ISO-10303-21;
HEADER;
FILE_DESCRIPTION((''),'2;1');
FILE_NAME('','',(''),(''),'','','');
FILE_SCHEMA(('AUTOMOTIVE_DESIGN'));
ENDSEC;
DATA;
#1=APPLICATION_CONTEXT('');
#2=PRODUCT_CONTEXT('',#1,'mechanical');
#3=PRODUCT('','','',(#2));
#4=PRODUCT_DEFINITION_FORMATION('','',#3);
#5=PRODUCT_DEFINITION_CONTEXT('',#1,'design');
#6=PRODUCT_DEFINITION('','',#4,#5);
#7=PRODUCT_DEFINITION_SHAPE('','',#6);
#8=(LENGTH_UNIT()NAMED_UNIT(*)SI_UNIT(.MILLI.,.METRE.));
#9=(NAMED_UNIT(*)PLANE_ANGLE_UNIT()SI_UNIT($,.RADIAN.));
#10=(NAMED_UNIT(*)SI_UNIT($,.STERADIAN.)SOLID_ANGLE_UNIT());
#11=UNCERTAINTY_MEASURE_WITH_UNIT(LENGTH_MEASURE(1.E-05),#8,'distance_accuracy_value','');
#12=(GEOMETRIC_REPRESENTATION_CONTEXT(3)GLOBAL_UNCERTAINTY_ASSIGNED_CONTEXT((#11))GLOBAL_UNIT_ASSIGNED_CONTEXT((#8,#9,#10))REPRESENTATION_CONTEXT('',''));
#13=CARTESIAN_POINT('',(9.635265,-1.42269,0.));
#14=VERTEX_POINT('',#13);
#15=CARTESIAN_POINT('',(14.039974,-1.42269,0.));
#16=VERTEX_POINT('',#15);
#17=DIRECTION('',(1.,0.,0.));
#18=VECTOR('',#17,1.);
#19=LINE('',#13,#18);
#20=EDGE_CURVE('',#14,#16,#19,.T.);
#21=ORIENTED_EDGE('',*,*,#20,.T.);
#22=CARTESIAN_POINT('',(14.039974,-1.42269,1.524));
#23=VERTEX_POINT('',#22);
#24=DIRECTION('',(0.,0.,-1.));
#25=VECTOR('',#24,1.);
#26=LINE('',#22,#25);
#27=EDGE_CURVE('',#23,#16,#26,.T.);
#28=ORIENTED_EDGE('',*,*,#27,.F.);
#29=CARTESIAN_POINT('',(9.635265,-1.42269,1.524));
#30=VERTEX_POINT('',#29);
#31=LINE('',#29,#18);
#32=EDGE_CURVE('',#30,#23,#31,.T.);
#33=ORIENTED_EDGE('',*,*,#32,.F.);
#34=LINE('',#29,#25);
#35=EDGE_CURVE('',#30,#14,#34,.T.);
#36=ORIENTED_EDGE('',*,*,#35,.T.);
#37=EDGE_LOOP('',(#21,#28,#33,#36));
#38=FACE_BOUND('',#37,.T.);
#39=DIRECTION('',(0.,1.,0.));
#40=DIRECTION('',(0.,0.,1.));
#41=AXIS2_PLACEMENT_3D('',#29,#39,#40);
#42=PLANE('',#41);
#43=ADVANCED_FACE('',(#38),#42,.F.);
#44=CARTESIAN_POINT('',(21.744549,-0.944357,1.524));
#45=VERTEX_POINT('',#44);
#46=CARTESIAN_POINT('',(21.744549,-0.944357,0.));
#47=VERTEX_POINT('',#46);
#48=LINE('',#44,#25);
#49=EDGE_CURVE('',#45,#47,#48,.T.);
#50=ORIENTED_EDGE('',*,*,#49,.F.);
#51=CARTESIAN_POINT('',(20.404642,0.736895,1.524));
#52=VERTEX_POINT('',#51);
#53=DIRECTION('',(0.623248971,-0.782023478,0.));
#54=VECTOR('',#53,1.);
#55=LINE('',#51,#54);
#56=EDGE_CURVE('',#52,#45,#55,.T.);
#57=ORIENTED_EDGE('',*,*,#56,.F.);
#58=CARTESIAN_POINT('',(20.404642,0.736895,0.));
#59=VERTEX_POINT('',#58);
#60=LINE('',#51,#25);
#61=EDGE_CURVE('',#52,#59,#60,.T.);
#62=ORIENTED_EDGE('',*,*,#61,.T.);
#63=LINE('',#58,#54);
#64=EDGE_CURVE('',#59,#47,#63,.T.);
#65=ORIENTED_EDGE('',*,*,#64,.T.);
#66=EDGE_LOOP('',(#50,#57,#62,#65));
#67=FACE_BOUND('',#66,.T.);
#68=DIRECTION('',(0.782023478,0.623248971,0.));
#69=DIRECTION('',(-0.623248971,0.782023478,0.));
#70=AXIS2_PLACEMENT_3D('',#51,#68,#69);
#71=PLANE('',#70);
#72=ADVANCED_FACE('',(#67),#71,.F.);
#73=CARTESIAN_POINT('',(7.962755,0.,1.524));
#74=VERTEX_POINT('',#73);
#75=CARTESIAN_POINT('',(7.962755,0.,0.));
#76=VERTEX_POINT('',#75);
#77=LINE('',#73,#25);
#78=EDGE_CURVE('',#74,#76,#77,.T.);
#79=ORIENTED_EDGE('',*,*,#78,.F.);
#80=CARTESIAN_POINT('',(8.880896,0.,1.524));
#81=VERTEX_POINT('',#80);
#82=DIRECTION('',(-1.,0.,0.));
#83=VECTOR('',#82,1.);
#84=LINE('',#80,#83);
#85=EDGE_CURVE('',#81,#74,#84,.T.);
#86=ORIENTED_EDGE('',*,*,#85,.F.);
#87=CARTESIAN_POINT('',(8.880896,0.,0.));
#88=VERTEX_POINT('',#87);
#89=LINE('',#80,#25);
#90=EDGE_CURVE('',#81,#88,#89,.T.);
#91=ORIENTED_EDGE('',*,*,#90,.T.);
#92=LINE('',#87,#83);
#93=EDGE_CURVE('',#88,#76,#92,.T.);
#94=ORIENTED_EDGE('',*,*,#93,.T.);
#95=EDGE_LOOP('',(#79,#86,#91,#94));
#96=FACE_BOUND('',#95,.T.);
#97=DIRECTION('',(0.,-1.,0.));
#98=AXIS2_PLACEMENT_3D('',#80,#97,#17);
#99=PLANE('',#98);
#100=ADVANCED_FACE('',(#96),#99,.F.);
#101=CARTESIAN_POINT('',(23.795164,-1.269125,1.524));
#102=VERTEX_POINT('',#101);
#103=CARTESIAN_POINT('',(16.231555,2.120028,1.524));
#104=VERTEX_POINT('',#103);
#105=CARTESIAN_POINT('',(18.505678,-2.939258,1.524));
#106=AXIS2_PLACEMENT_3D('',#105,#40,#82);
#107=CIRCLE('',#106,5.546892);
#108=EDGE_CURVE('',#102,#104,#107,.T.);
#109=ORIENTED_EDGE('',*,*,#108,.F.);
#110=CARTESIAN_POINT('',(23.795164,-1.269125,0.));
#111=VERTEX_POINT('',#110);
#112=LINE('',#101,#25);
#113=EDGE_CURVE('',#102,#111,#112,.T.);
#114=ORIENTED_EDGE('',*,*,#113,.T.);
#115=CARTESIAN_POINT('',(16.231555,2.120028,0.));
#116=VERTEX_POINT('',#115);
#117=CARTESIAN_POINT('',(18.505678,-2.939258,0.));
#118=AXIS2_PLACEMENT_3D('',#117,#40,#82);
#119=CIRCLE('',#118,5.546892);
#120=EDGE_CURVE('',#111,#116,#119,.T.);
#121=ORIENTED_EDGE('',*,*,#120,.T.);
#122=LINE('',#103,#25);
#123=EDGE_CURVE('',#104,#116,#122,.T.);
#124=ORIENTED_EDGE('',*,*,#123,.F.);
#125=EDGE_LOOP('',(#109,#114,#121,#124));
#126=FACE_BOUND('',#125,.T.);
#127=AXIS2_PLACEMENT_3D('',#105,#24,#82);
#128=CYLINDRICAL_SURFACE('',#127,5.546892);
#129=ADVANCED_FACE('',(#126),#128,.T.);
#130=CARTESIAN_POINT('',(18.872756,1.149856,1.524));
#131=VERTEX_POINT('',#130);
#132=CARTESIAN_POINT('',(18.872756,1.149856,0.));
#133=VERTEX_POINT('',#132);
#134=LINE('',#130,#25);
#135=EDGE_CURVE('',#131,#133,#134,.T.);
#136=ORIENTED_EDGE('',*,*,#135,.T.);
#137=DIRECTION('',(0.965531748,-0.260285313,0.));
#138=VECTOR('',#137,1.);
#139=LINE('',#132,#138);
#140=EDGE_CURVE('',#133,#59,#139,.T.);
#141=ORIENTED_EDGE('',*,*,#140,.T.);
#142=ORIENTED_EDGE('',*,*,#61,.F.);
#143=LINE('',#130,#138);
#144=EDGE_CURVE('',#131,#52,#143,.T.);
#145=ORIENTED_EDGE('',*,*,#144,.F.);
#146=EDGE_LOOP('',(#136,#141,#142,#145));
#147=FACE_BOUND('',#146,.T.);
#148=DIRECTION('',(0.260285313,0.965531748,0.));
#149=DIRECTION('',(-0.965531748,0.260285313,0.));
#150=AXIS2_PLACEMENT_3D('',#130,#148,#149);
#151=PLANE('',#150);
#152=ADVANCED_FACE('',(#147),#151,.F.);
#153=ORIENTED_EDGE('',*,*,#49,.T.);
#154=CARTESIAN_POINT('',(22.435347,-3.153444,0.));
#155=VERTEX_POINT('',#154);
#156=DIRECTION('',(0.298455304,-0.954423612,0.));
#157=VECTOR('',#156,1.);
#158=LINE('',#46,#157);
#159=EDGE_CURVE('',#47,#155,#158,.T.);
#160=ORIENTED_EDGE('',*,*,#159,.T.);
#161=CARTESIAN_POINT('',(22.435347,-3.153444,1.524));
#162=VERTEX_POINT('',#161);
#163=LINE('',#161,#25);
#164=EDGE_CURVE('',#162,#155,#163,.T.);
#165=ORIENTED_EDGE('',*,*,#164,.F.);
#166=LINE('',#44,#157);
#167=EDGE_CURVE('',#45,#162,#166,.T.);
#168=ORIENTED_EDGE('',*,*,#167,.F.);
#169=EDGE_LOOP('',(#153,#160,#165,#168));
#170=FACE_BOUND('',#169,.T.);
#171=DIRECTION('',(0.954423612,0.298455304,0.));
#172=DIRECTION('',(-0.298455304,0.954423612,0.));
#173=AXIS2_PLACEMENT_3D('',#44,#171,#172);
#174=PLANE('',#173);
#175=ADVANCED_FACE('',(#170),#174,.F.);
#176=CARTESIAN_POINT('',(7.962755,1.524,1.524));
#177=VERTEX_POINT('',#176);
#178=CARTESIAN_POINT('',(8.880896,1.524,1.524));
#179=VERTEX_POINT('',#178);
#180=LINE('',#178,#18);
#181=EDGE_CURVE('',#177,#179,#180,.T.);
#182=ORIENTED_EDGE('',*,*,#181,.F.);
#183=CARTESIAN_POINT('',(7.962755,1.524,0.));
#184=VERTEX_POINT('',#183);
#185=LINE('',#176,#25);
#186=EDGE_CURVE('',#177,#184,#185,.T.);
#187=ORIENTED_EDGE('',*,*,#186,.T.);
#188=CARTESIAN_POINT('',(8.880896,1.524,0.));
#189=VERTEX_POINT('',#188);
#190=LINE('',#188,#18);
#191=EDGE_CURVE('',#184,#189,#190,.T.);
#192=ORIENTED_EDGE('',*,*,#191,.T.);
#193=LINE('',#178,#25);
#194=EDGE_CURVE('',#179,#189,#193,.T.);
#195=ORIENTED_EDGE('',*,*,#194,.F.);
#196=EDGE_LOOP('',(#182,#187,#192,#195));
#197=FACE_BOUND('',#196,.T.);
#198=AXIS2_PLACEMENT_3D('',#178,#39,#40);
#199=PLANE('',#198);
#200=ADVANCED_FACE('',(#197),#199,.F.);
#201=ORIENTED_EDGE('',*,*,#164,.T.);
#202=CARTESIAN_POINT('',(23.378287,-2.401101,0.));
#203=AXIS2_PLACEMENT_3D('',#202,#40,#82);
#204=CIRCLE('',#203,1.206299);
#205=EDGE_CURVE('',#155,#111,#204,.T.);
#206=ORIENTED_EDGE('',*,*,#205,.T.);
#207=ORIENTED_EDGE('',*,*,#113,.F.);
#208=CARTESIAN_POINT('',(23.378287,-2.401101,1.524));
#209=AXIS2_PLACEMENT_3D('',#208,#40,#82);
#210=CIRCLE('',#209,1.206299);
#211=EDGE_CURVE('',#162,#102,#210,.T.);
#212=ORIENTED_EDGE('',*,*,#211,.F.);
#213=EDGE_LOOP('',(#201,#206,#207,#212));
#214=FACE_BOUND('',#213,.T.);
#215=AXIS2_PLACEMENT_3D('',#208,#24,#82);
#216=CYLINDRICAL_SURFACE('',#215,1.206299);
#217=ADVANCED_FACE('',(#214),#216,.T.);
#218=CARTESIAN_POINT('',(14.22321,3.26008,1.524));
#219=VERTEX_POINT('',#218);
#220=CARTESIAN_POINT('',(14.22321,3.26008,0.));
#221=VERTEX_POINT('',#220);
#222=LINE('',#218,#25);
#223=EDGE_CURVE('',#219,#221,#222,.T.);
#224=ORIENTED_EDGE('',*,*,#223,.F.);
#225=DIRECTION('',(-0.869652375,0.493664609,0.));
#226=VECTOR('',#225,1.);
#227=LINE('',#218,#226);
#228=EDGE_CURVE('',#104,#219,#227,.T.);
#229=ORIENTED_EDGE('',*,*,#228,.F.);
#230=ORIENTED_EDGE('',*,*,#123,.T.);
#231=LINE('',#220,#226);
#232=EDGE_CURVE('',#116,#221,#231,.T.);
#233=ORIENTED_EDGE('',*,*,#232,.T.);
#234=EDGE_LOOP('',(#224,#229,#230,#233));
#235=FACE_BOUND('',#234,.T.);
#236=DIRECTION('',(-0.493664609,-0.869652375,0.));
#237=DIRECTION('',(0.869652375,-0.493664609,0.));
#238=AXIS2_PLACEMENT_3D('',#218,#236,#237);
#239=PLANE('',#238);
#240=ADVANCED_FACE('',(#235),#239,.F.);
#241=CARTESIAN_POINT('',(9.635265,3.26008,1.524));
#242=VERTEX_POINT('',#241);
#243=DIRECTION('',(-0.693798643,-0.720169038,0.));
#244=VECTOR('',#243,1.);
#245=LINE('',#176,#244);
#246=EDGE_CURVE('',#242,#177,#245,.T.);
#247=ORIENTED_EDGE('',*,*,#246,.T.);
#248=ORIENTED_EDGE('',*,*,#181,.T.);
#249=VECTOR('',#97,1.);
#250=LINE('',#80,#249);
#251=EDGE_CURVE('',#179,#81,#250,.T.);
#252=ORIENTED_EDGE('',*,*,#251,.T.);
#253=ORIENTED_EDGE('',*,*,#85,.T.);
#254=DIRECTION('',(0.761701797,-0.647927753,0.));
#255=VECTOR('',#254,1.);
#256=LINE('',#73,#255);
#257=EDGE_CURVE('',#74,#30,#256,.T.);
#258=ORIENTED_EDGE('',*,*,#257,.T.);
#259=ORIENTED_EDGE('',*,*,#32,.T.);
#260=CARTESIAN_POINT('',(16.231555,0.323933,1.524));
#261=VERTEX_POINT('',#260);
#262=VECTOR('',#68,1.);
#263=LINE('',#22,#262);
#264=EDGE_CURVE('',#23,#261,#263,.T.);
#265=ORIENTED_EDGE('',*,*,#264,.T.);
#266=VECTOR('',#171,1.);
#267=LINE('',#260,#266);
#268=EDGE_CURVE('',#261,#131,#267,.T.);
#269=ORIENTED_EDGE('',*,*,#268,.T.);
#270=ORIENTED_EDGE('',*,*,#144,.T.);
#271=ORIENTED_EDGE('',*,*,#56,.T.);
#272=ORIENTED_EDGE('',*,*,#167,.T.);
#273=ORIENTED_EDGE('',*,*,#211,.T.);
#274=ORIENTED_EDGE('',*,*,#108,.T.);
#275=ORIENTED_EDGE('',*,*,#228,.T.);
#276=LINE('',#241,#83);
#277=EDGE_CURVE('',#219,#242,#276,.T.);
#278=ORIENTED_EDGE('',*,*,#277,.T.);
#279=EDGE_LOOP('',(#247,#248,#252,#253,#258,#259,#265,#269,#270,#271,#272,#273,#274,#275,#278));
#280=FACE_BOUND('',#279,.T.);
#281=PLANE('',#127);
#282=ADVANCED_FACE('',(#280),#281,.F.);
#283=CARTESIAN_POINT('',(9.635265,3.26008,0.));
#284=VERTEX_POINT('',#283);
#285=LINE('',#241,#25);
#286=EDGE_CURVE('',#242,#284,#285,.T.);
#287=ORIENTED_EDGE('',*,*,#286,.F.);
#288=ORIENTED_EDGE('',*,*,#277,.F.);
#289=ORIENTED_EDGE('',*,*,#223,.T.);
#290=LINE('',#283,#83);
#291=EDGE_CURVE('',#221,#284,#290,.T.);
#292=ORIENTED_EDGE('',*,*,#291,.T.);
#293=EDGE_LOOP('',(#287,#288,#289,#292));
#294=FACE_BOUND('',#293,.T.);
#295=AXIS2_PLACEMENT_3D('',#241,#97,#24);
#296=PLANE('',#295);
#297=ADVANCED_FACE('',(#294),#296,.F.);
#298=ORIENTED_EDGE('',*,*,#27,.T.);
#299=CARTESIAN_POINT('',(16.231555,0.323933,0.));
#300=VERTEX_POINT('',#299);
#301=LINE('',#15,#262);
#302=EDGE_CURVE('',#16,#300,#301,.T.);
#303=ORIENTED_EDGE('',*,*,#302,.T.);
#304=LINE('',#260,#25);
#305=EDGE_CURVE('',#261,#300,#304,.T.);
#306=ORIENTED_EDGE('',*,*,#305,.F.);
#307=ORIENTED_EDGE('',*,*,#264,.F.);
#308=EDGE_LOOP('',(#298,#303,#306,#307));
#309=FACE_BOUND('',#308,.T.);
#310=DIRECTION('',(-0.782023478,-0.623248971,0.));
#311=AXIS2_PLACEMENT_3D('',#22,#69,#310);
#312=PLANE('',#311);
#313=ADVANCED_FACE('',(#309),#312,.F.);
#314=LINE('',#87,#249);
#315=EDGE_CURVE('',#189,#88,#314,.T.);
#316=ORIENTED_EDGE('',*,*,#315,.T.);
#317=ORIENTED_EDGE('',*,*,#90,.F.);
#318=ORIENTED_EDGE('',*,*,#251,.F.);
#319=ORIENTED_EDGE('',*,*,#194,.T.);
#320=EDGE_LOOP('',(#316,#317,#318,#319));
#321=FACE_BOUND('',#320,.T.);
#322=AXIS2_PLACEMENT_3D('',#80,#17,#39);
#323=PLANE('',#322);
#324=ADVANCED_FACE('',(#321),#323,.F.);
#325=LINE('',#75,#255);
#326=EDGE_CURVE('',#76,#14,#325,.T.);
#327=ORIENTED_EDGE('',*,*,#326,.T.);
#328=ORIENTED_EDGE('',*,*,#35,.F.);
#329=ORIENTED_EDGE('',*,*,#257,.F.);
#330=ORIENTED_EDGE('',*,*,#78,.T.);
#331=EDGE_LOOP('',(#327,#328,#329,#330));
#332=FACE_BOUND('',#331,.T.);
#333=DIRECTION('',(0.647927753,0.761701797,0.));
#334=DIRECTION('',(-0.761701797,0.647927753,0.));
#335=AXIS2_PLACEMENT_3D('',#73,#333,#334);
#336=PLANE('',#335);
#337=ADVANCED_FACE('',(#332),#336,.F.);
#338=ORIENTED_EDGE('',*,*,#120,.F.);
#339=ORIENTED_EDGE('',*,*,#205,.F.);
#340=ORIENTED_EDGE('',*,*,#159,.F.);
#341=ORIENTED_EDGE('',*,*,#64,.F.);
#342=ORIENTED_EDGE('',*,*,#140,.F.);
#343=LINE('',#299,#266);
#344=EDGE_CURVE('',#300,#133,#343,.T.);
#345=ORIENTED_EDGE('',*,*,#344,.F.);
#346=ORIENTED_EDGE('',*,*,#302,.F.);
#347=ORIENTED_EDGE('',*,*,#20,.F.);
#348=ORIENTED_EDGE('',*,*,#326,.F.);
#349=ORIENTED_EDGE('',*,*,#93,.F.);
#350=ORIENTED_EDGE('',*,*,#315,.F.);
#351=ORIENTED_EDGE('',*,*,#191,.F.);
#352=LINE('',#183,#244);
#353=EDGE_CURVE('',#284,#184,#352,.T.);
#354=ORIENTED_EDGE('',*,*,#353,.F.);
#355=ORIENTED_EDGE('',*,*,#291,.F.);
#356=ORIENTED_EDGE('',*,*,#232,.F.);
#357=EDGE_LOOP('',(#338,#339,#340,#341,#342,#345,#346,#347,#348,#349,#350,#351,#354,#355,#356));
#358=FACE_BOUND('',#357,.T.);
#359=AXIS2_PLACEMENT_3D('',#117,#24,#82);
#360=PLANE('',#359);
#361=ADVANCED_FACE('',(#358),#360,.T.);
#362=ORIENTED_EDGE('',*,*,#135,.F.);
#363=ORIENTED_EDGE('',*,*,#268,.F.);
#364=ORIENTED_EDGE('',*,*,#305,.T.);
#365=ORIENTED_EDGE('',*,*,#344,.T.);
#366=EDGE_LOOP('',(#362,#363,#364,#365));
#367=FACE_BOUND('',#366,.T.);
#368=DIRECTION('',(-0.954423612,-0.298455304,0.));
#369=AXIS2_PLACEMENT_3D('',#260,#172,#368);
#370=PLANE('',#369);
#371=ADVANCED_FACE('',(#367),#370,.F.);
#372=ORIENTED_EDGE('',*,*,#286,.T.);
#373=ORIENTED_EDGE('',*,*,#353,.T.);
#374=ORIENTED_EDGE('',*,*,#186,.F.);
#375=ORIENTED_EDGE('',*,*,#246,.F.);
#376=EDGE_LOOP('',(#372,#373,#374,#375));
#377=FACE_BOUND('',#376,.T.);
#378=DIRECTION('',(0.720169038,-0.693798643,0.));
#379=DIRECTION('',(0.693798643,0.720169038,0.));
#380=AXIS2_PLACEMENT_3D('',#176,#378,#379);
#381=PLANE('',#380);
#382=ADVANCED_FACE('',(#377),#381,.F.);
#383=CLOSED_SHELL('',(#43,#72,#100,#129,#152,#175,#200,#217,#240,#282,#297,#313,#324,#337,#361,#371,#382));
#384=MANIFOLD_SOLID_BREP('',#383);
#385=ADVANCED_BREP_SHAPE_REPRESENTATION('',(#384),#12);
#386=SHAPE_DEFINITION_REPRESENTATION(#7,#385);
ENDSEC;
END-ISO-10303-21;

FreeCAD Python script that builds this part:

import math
import FreeCAD as App
import Part
import Sketcher

V = App.Vector
Q = App.Units.Quantity

doc = App.newDocument("Part")
body = doc.addObject("PartDesign::Body", "Body")

# Sketch on XY plane
sketch1 = body.newObject("Sketcher::SketchObject", "Sketch")
sketch1.AttachmentSupport = (doc.getObject("XY_Plane"), [""])
sketch1.MapMode = "FlatFace"
sketch1.addGeometry([
    Part.LineSegment(V(8.9, 0, 0), V(8, 0, 0)),  # 0
    Part.LineSegment(V(8, 0, 0), V(9.6, -1.4, 0)),  # 1
    Part.LineSegment(V(9.6, -1.4, 0), V(14, -1.4, 0)),  # 2
    Part.LineSegment(V(14, -1.4, 0), V(16.2, 0.3, 0)),  # 3
    Part.LineSegment(V(16.2, 0.3, 0), V(18.9, 1.1, 0)),  # 4
    Part.LineSegment(V(18.9, 1.1, 0), V(20.4, 0.7, 0)),  # 5
    Part.LineSegment(V(20.4, 0.7, 0), V(21.7, -0.9, 0)),  # 6
    Part.LineSegment(V(21.7, -0.9, 0), V(22.4, -3.2, 0)),  # 7
    Part.ArcOfCircle(Part.Circle(V(23.4, -2.4, 0), V(0, 0, 1), 1.2), math.radians(-141), math.radians(70)),  # 8
    Part.ArcOfCircle(Part.Circle(V(18.5, -2.9, 0), V(0, 0, 1), 5.5), math.radians(18), math.radians(114)),  # 9
    Part.LineSegment(V(16.2, 2.1, 0), V(14.2, 3.3, 0)),  # 10
    Part.LineSegment(V(14.2, 3.3, 0), V(9.6, 3.3, 0)),  # 11
    Part.LineSegment(V(9.6, 3.3, 0), V(8, 1.5, 0)),  # 12
    Part.LineSegment(V(8, 1.5, 0), V(8.9, 1.5, 0)),  # 13
    Part.LineSegment(V(8.9, 1.5, 0), V(8.9, 0, 0)),  # 14
], False)
sketch1.addConstraint([
    Sketcher.Constraint("Coincident", 0, 2, 1, 1),
    Sketcher.Constraint("Coincident", 1, 2, 2, 1),
    Sketcher.Constraint("Coincident", 2, 2, 3, 1),
    Sketcher.Constraint("Coincident", 3, 2, 4, 1),
    Sketcher.Constraint("Coincident", 4, 2, 5, 1),
    Sketcher.Constraint("Coincident", 5, 2, 6, 1),
    Sketcher.Constraint("Coincident", 6, 2, 7, 1),
    Sketcher.Constraint("Coincident", 7, 2, 8, 1),
    Sketcher.Constraint("Coincident", 8, 2, 9, 1),
    Sketcher.Constraint("Coincident", 9, 2, 10, 1),
    Sketcher.Constraint("Coincident", 10, 2, 11, 1),
    Sketcher.Constraint("Coincident", 11, 2, 12, 1),
    Sketcher.Constraint("Coincident", 12, 2, 13, 1),
    Sketcher.Constraint("Coincident", 13, 2, 14, 1),
    Sketcher.Constraint("Coincident", 14, 2, 0, 1),
    Sketcher.Constraint("Horizontal", 0),
    Sketcher.Constraint("Horizontal", 2),
    Sketcher.Constraint("Horizontal", 11),
    Sketcher.Constraint("Horizontal", 13),
    Sketcher.Constraint("Vertical", 14),
    Sketcher.Constraint("PointOnObject", 0, 2, -1),
    Sketcher.Constraint("Perpendicular", 3, 6),
    Sketcher.Constraint("Perpendicular", 4, 7),
    Sketcher.Constraint("Vertical", 3, 2, 9, 2),
    Sketcher.Constraint("Vertical", 1, 2, 11, 2),
    Sketcher.Constraint("Vertical", 0, 2, 12, 2),
    Sketcher.Constraint("DistanceY", 14, 2, 14, 1, Q("0.06 in")),
    Sketcher.Constraint("Radius", 8, Q("1.206299 mm")),
    Sketcher.Constraint("Radius", 9, Q("5.546892 mm")),
    Sketcher.Constraint("DistanceX", 0, 2, 0, 1, Q("0.918141 mm")),
    Sketcher.Constraint("DistanceX", 2, 1, 2, 2, Q("4.404709 mm")),
    Sketcher.Constraint("DistanceY", 8, 3, -1, 1, Q("2.401101 mm")),
    Sketcher.Constraint("DistanceX", 0, 2, 3, 2, Q("8.2688 mm")),
    Sketcher.Constraint("DistanceX", 3, 2, 4, 2, Q("2.641201 mm")),
    Sketcher.Constraint("DistanceY", 9, 3, 6, 2, Q("1.994901 mm")),
    Sketcher.Constraint("DistanceY", 7, 2, 4, 2, Q("4.3033 mm")),
    Sketcher.Constraint("Distance", 3, Q("2.802449 mm")),
    Sketcher.Constraint("DistanceX", 11, 2, 11, 1, Q("4.587945 mm")),
    Sketcher.Constraint("DistanceX", -1, 1, 9, 3, Q("18.505678 mm")),
    Sketcher.Constraint("DistanceY", 1, 2, -1, 1, Q("1.42269 mm")),
    Sketcher.Constraint("DistanceX", -1, 1, 6, 2, Q("21.744549 mm")),
    Sketcher.Constraint("DistanceY", -1, 1, 9, 2, Q("2.120028 mm")),
    Sketcher.Constraint("DistanceX", -1, 1, 10, 2, Q("14.22321 mm")),
    Sketcher.Constraint("DistanceY", -1, 1, 10, 2, Q("3.26008 mm")),
    Sketcher.Constraint("DistanceX", 9, 3, 8, 3, Q("4.872609 mm")),
    Sketcher.Constraint("DistanceX", 0, 2, 8, 3, Q("15.415531 mm")),
    Sketcher.Constraint("DistanceY", 5, 2, 4, 2, Q("0.412962 mm")),
])
pad1 = body.newObject("PartDesign::Pad", "Pad")
pad1.Profile = sketch1
pad1.Length = Q("0.06 in")

doc.recompute()
